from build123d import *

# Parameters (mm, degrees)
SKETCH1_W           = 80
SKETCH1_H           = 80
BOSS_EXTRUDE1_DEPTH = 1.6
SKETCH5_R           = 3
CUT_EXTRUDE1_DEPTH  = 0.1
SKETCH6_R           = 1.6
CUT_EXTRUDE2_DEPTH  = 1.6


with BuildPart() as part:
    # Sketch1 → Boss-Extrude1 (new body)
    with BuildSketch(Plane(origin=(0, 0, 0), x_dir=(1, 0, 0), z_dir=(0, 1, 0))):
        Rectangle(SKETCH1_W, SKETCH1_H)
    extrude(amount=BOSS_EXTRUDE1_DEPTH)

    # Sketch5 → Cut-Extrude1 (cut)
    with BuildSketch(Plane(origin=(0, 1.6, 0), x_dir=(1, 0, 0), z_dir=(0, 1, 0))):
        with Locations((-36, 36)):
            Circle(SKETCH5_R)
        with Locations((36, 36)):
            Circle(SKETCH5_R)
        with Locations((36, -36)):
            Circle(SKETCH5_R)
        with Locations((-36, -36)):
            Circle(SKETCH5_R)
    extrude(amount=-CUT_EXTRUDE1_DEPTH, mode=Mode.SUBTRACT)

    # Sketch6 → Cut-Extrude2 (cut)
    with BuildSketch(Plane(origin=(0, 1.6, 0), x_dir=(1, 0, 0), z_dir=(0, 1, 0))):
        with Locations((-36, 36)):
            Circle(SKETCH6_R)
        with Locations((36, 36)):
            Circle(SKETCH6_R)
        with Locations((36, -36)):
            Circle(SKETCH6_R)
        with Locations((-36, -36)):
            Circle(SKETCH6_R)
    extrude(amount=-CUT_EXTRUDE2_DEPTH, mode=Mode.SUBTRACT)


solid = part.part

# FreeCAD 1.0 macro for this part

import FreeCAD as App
import Part
import Sketcher
from FreeCAD import Vector
Q = App.Units.Quantity


def add_polygon(sketch, points):
    """Adds a closed chain of lines whose ends are joined by coincident constraints."""
    first, n = sketch.GeometryCount, len(points)
    for a, b in zip(points, points[1:] + points[:1]):
        sketch.addGeometry(Part.LineSegment(App.Vector(*a, 0), App.Vector(*b, 0)), False)
    for i in range(n):
        sketch.addConstraint(Sketcher.Constraint("Coincident", first + i, 2, first + (i + 1) % n, 1))

doc = App.newDocument("Part")
body = doc.addObject("PartDesign::Body", "Body")

sketch1 = doc.addObject("Sketcher::SketchObject", "Sketch")
body.addObject(sketch1)
sketch1.AttachmentSupport = (doc.XZ_Plane, [""])
sketch1.MapMode = "FlatFace"
add_polygon(sketch1, [(-40, -40), (-40, 40), (40, 40), (40, -40)])
sketch1.addConstraint([
    Sketcher.Constraint("Vertical", 0),
    Sketcher.Constraint("Horizontal", 1),
    Sketcher.Constraint("Vertical", 2),
    Sketcher.Constraint("Horizontal", 3),
    Sketcher.Constraint("Symmetric", 0, 2, 2, 2, -1, 1),
    Sketcher.Constraint("Equal", 3, 0),
    Sketcher.Constraint("DistanceX", 1, 1, 1, 2, Q("80 mm")),
])
pad1 = doc.addObject("PartDesign::Pad", "Pad")
body.addObject(pad1)
pad1.Profile = sketch1
pad1.Length = 1.6
pad1.Reversed = True

sketch2 = doc.addObject("Sketcher::SketchObject", "Sketch001")
body.addObject(sketch2)
sketch2.AttachmentSupport = (doc.XZ_Plane, [""])
sketch2.MapMode = "FlatFace"
sketch2.AttachmentOffset = App.Placement(Vector(0, 0, -1.6), App.Rotation())
sketch2.addGeometry([
    Part.Circle(Vector(-36, -36, 0), Vector(0, 0, 1), 3),
    Part.Circle(Vector(36, -36, 0), Vector(0, 0, 1), 3),
    Part.Circle(Vector(36, 36, 0), Vector(0, 0, 1), 3),
    Part.Circle(Vector(-36, 36, 0), Vector(0, 0, 1), 3),
], False)
sketch2.addConstraint([
    Sketcher.Constraint("Equal", 0, 1),
    Sketcher.Constraint("Equal", 1, 2),
    Sketcher.Constraint("Equal", 2, 3),
    Sketcher.Constraint("Symmetric", 0, 3, 2, 3, -1, 1),
    Sketcher.Constraint("Symmetric", 1, 3, 3, 3, -1, 1),
    Sketcher.Constraint("Symmetric", 0, 3, 1, 3, -2),
    Sketcher.Constraint("Diameter", 0, Q("6 mm")),
    Sketcher.Constraint("DistanceX", 0, 3, -1, 1, Q("36 mm")),
    Sketcher.Constraint("DistanceY", 0, 3, -1, 1, Q("36 mm")),
])
pocket1 = doc.addObject("PartDesign::Pocket", "Pocket")
body.addObject(pocket1)
pocket1.Profile = sketch2
pocket1.Length = 0.1
pocket1.Reversed = True

sketch3 = doc.addObject("Sketcher::SketchObject", "Sketch002")
body.addObject(sketch3)
sketch3.AttachmentSupport = (doc.XZ_Plane, [""])
sketch3.MapMode = "FlatFace"
sketch3.AttachmentOffset = App.Placement(Vector(0, 0, -1.6), App.Rotation())
sketch3.addGeometry([
    Part.Circle(Vector(-36, -36, 0), Vector(0, 0, 1), 1.6),
    Part.Circle(Vector(36, -36, 0), Vector(0, 0, 1), 1.6),
    Part.Circle(Vector(36, 36, 0), Vector(0, 0, 1), 1.6),
    Part.Circle(Vector(-36, 36, 0), Vector(0, 0, 1), 1.6),
], False)
sketch3.addConstraint([
    Sketcher.Constraint("Equal", 0, 1),
    Sketcher.Constraint("Equal", 1, 2),
    Sketcher.Constraint("Equal", 2, 3),
    Sketcher.Constraint("Symmetric", 0, 3, 2, 3, -1, 1),
    Sketcher.Constraint("Symmetric", 1, 3, 3, 3, -1, 1),
    Sketcher.Constraint("Symmetric", 0, 3, 1, 3, -2),
    Sketcher.Constraint("Diameter", 0, Q("3.2 mm")),
    Sketcher.Constraint("DistanceX", 0, 3, -1, 1, Q("36 mm")),
    Sketcher.Constraint("DistanceY", 0, 3, -1, 1, Q("36 mm")),
])
pocket2 = doc.addObject("PartDesign::Pocket", "Pocket001")
body.addObject(pocket2)
pocket2.Profile = sketch3
pocket2.Length = 1.6
pocket2.Reversed = True

doc.recompute()
